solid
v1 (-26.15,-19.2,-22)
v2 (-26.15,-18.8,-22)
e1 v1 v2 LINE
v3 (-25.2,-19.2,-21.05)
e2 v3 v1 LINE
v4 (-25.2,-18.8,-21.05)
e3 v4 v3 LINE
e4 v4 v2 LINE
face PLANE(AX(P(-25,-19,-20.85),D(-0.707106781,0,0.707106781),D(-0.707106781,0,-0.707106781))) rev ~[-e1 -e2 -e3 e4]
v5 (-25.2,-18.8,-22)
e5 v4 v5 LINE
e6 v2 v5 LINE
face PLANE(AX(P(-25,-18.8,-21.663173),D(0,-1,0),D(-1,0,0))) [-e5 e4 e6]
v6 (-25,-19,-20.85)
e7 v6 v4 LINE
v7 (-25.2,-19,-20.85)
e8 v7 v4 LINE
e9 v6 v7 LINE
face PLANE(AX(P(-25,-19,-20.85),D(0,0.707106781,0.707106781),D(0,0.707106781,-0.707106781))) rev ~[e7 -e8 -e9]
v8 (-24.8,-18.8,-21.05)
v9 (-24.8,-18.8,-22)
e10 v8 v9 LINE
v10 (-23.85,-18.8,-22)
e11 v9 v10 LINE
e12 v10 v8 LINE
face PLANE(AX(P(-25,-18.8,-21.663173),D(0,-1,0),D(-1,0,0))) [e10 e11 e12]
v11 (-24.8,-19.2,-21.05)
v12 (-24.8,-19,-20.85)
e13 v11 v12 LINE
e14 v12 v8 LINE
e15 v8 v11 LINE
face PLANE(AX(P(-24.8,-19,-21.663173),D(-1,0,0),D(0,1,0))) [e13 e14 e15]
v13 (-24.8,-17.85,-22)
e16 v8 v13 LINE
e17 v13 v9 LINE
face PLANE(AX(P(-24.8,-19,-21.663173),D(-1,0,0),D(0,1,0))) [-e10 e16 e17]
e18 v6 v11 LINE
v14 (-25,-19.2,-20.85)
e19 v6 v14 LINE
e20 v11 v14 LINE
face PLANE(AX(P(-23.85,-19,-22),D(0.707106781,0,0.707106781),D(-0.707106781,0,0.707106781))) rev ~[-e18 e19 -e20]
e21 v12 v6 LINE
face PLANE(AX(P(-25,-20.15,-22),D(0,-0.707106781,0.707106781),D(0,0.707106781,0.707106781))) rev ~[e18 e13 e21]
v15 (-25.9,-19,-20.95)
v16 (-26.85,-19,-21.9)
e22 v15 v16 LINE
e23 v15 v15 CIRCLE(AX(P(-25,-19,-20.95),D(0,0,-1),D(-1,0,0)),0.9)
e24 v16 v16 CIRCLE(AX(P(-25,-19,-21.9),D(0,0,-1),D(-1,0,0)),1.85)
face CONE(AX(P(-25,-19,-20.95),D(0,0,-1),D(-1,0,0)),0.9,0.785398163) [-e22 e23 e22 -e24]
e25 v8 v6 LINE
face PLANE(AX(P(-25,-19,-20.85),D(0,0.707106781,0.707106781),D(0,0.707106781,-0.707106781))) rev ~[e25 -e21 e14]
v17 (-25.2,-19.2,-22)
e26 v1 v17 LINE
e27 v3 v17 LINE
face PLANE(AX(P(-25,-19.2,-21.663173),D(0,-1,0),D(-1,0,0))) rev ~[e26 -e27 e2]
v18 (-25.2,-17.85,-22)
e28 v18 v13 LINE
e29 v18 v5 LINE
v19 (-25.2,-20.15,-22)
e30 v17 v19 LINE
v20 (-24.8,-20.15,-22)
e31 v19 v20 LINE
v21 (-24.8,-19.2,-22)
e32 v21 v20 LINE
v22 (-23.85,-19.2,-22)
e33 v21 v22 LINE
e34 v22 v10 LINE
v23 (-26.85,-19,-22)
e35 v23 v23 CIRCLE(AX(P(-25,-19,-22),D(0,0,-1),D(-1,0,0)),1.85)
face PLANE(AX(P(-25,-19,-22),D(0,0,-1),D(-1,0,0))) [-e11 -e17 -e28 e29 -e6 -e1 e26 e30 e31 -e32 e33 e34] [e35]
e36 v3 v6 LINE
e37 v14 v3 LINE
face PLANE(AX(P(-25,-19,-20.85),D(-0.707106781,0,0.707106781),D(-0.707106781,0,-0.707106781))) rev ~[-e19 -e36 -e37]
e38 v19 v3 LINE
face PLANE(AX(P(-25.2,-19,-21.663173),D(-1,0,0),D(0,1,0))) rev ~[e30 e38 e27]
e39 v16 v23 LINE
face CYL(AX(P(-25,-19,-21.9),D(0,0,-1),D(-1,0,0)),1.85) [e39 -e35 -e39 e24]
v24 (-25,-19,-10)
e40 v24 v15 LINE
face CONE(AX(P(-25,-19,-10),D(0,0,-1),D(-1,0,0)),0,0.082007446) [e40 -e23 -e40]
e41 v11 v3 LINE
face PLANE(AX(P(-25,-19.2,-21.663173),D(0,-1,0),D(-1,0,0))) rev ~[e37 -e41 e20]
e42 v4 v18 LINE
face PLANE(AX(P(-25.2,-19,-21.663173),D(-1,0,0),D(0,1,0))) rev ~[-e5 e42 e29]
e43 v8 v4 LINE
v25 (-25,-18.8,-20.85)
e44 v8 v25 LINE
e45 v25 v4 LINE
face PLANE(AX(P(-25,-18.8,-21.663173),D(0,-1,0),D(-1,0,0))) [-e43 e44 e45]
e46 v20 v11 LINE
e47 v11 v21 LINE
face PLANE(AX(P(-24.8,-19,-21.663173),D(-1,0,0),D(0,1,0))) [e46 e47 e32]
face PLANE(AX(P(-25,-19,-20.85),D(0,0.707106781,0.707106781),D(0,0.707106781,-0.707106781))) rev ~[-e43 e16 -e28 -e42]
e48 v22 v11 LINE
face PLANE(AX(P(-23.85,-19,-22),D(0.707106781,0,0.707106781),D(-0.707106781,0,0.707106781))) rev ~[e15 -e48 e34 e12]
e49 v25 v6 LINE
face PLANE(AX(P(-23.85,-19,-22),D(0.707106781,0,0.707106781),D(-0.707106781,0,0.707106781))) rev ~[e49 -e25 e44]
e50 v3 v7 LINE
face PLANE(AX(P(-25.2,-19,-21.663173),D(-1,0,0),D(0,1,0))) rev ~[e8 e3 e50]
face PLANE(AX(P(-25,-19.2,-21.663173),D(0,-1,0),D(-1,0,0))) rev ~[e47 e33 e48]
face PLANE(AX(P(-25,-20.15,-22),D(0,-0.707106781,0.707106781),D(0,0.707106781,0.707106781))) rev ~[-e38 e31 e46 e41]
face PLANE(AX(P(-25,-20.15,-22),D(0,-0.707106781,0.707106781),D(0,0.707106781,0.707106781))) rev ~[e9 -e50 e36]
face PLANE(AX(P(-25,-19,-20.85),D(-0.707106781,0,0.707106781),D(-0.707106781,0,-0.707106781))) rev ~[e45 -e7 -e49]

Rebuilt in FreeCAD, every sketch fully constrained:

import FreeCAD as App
import Part
import Sketcher
Q = App.Units.Quantity


def add_polygon(sketch, points):
    """Adds a closed chain of lines whose ends are joined by coincident constraints."""
    first, n = sketch.GeometryCount, len(points)
    for a, b in zip(points, points[1:] + points[:1]):
        sketch.addGeometry(Part.LineSegment(App.Vector(*a, 0), App.Vector(*b, 0)), False)
    for i in range(n):
        sketch.addConstraint(Sketcher.Constraint("Coincident", first + i, 2, first + (i + 1) % n, 1))

doc = App.newDocument("Part")
body = doc.addObject("PartDesign::Body", "Body")

sketch1 = body.newObject("Sketcher::SketchObject", "Sketch")
sketch1.AttachmentSupport = (doc.getObject("XZ_Plane"), [""])
sketch1.MapMode = "FlatFace"
add_polygon(sketch1, [(0, 0), (0, -12), (0.9, -1.05), (1.85, -0.1), (1.85, 0)])
sketch1.addConstraint(Sketcher.Constraint("Vertical", 0))
sketch1.addConstraint(Sketcher.Constraint("Vertical", 3))
sketch1.addConstraint(Sketcher.Constraint("Horizontal", 4))
sketch1.addConstraint(Sketcher.Constraint("Coincident", 4, 2, -1, 1))
sketch1.addConstraint(Sketcher.Constraint("DistanceY", 0, 2, 0, 1, Q("12 mm")))
sketch1.addConstraint(Sketcher.Constraint("Angle", 2, Q("45 deg")))
sketch1.addConstraint(Sketcher.Constraint("DistanceY", 3, 1, 3, 2, Q("0.1 mm")))
sketch1.addConstraint(Sketcher.Constraint("DistanceX", 4, 2, 4, 1, Q("1.85 mm")))
sketch1.addConstraint(Sketcher.Constraint("DistanceX", -1, 1, 1, 2, Q("0.9 mm")))
revolution = body.newObject("PartDesign::Revolution", "Revolution")
revolution.Profile = sketch1
revolution.ReferenceAxis = (sketch1, ["V_Axis"])
revolution.Angle = 360

sketch2 = body.newObject("Sketcher::SketchObject", "Sketch001")
sketch2.AttachmentSupport = (doc.getObject("XZ_Plane"), [""])
sketch2.MapMode = "FlatFace"
add_polygon(sketch2, [(-1.1, 0), (0, -1.1), (1.1, 0)])
sketch2.addConstraint(Sketcher.Constraint("Horizontal", 2))
sketch2.addConstraint(Sketcher.Constraint("Symmetric", 1, 2, 2, 2, -1, 1))
sketch2.addConstraint(Sketcher.Constraint("PointOnObject", 0, 2, -2))
sketch2.addConstraint(Sketcher.Constraint("Perpendicular", 0, 1))
sketch2.addConstraint(Sketcher.Constraint("DistanceX", 2, 2, 2, 1, Q("2.3 mm")))
pocket1 = body.newObject("PartDesign::Pocket", "Pocket")
pocket1.Profile = sketch2
pocket1.Length = 0.4
pocket1.Midplane = True
doc.recompute()

polarpattern = body.newObject("PartDesign::PolarPattern", "PolarPattern")
polarpattern.Originals = [pocket1]
polarpattern.Axis = (doc.getObject("Z_Axis"), [""])
polarpattern.Angle = 90
polarpattern.Occurrences = 2
body.Tip = polarpattern
body2 = doc.addObject("PartDesign::Body", "Body001")
doc.recompute()

body.Placement = App.Placement(App.Vector(-25, -19, -22), App.Rotation(App.Vector(0, 1, 0), 180))
boolean = body2.newObject("PartDesign::Boolean", "Boolean")
boolean.Type = "Fuse"
boolean.addObjects([body])

doc.recompute()
